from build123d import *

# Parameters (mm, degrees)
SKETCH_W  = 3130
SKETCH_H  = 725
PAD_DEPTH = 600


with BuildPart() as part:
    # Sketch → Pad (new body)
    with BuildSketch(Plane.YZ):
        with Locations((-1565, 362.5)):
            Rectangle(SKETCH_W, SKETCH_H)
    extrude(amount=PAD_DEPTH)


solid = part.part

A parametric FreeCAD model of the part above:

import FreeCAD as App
import Part
import Sketcher

doc = App.newDocument("Part")
body = doc.addObject("PartDesign::Body", "Body")

sketch1 = body.newObject("Sketcher::SketchObject", "Sketch")
sketch1.AttachmentSupport = (doc.getObject("YZ_Plane"), [""])
sketch1.MapMode = "FlatFace"
sketch1.addGeometry(Part.LineSegment(App.Vector(-3130, 725, 0), App.Vector(-3130, 0, 0)), False)
sketch1.addGeometry(Part.LineSegment(App.Vector(-3130, 0, 0), App.Vector(0, 0, 0)), False)
sketch1.addGeometry(Part.LineSegment(App.Vector(0, 0, 0), App.Vector(0, 725, 0)), False)
sketch1.addGeometry(Part.LineSegment(App.Vector(0, 725, 0), App.Vector(-3130, 725, 0)), False)
sketch1.addConstraint(Sketcher.Constraint("Coincident", 0, 2, 1, 1))
sketch1.addConstraint(Sketcher.Constraint("Coincident", 1, 2, 2, 1))
sketch1.addConstraint(Sketcher.Constraint("Coincident", 2, 2, 3, 1))
sketch1.addConstraint(Sketcher.Constraint("Coincident", 3, 2, 0, 1))
sketch1.addConstraint(Sketcher.Constraint("Vertical", 0))
sketch1.addConstraint(Sketcher.Constraint("Horizontal", 1))
sketch1.addConstraint(Sketcher.Constraint("Vertical", 2))
sketch1.addConstraint(Sketcher.Constraint("Horizontal", 3))
sketch1.addConstraint(Sketcher.Constraint("Coincident", 1, 2, -1, 1))
sketch1.addConstraint(Sketcher.Constraint("DistanceX", 1, 1, 1, 2, 3130.0))
sketch1.addConstraint(Sketcher.Constraint("DistanceY", 0, 2, 0, 1, 725.0))
pad1 = body.newObject("PartDesign::Pad", "Pad")
pad1.Profile = sketch1
pad1.Length = 600

doc.recompute()
